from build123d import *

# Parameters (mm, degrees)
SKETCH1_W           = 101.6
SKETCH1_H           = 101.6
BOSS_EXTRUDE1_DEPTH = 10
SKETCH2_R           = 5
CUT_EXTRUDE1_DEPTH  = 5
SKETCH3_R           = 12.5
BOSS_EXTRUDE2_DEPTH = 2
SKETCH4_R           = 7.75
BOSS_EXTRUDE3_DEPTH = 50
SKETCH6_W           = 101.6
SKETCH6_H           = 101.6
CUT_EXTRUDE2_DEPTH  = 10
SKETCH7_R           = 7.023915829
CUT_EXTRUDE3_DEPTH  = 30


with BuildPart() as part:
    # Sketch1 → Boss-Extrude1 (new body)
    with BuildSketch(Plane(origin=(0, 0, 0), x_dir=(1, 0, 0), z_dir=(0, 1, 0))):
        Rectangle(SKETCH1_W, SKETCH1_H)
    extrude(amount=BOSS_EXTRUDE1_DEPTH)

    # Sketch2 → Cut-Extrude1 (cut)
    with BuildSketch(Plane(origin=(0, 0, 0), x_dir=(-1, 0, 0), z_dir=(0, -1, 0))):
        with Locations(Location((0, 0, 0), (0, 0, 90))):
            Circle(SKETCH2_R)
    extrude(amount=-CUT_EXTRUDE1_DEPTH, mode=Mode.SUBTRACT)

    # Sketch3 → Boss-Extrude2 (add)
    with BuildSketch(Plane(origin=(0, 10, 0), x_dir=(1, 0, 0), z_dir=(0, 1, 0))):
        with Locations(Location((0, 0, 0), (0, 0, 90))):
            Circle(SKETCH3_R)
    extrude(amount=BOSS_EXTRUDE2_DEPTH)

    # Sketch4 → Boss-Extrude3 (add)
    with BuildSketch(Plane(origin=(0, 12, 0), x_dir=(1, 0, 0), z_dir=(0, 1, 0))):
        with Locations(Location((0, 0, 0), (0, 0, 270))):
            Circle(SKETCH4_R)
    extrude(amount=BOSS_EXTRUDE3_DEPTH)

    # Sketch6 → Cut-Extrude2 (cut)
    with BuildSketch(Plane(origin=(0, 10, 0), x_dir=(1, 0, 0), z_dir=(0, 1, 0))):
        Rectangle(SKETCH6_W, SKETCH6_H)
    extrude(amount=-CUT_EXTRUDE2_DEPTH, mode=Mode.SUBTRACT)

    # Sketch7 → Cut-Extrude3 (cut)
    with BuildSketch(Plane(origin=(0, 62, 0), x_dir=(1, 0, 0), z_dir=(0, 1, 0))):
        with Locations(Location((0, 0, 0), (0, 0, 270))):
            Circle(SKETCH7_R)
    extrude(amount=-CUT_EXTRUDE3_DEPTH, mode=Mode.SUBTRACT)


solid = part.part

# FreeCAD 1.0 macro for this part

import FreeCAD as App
import Part
import Sketcher
from FreeCAD import Vector


def add_polygon(sketch, points):
    """Adds a closed chain of lines whose ends are joined by coincident constraints."""
    first, n = sketch.GeometryCount, len(points)
    for a, b in zip(points, points[1:] + points[:1]):
        sketch.addGeometry(Part.LineSegment(App.Vector(*a, 0), App.Vector(*b, 0)), False)
    for i in range(n):
        sketch.addConstraint(Sketcher.Constraint("Coincident", first + i, 2, first + (i + 1) % n, 1))

doc = App.newDocument("Part")
params = doc.addObject("Spreadsheet::Sheet", "Params")
for row, (alias, value) in enumerate([
    ("sketch1_width", "101.6 mm"),
    ("pad1_length", "10 mm"),
    ("sketch2_diameter", "10 mm"),
    ("pocket1_length", "5 mm"),
    ("sketch3_diameter", "25 mm"),
    ("pad2_length", "2 mm"),
    ("sketch4_diameter", "15.5 mm"),
    ("pad3_length", "50 mm"),
    ("sketch5_width", "101.6 mm"),
    ("pocket2_length", "10 mm"),
    ("pocket3_length", "30 mm"),
], start=1):
    params.set(f"A{row}", alias)
    params.set(f"B{row}", "=" + value)
    params.setAlias(f"B{row}", alias)

body = doc.addObject("PartDesign::Body", "Body")

sketch1 = body.newObject("Sketcher::SketchObject", "Sketch")
sketch1.AttachmentSupport = (doc.getObject("XZ_Plane"), [""])
sketch1.MapMode = "FlatFace"
add_polygon(sketch1, [(-51, -51), (-51, 51), (51, 51), (51, -51)])
sketch1.addConstraint([
    Sketcher.Constraint("Vertical", 0),
    Sketcher.Constraint("Horizontal", 1),
    Sketcher.Constraint("Vertical", 2),
    Sketcher.Constraint("Horizontal", 3),
    Sketcher.Constraint("Symmetric", 0, 2, 2, 2, -1, 1),
    Sketcher.Constraint("Equal", 3, 0),
    Sketcher.Constraint("DistanceX", 1, 1, 1, 2, 101.6),
])
sketch1.setExpression("Constraints[10]", "Params.sketch1_width")
pad1 = body.newObject("PartDesign::Pad", "Pad")
pad1.Profile = sketch1
pad1.setExpression("Length", "Params.pad1_length")
pad1.Reversed = True

sketch2 = body.newObject("Sketcher::SketchObject", "Sketch001")
sketch2.AttachmentSupport = (doc.getObject("XZ_Plane"), [""])
sketch2.MapMode = "FlatFace"
sketch2.addGeometry(Part.Circle(Vector(0, 0, 0), Vector(0, 0, 1), 5), False)
sketch2.addConstraint([
    Sketcher.Constraint("Coincident", 0, 3, -1, 1),
    Sketcher.Constraint("Diameter", 0, 10.0),
])
sketch2.setExpression("Constraints[1]", "Params.sketch2_diameter")
pocket1 = body.newObject("PartDesign::Pocket", "Pocket")
pocket1.Profile = sketch2
pocket1.setExpression("Length", "Params.pocket1_length")

sketch3 = body.newObject("Sketcher::SketchObject", "Sketch002")
sketch3.AttachmentSupport = (doc.getObject("XZ_Plane"), [""])
sketch3.MapMode = "FlatFace"
sketch3.AttachmentOffset = App.Placement(Vector(0, 0, -10), App.Rotation())
sketch3.addGeometry(Part.Circle(Vector(0, 0, 0), Vector(0, 0, 1), 12), False)
sketch3.addConstraint([
    Sketcher.Constraint("Coincident", 0, 3, -1, 1),
    Sketcher.Constraint("Diameter", 0, 25.0),
])
sketch3.setExpression("Constraints[1]", "Params.sketch3_diameter")
pad2 = body.newObject("PartDesign::Pad", "Pad001")
pad2.Profile = sketch3
pad2.setExpression("Length", "Params.pad2_length")
pad2.Reversed = True

sketch4 = body.newObject("Sketcher::SketchObject", "Sketch003")
sketch4.AttachmentSupport = (doc.getObject("XZ_Plane"), [""])
sketch4.MapMode = "FlatFace"
sketch4.AttachmentOffset = App.Placement(Vector(0, 0, -12), App.Rotation())
sketch4.addGeometry(Part.Circle(Vector(0, 0, 0), Vector(0, 0, 1), 8), False)
sketch4.addConstraint([
    Sketcher.Constraint("Coincident", 0, 3, -1, 1),
    Sketcher.Constraint("Diameter", 0, 15.5),
])
sketch4.setExpression("Constraints[1]", "Params.sketch4_diameter")
pad3 = body.newObject("PartDesign::Pad", "Pad002")
pad3.Profile = sketch4
pad3.setExpression("Length", "Params.pad3_length")
pad3.Reversed = True

sketch5 = body.newObject("Sketcher::SketchObject", "Sketch004")
sketch5.AttachmentSupport = (doc.getObject("XZ_Plane"), [""])
sketch5.MapMode = "FlatFace"
sketch5.AttachmentOffset = App.Placement(Vector(0, 0, -10), App.Rotation())
add_polygon(sketch5, [(-51, -51), (-51, 51), (51, 51), (51, -51)])
sketch5.addConstraint([
    Sketcher.Constraint("Vertical", 0),
    Sketcher.Constraint("Horizontal", 1),
    Sketcher.Constraint("Vertical", 2),
    Sketcher.Constraint("Horizontal", 3),
    Sketcher.Constraint("Symmetric", 0, 2, 2, 2, -1, 1),
    Sketcher.Constraint("Equal", 3, 0),
    Sketcher.Constraint("DistanceX", 1, 1, 1, 2, 101.6),
])
sketch5.setExpression("Constraints[10]", "Params.sketch5_width")
pocket2 = body.newObject("PartDesign::Pocket", "Pocket001")
pocket2.Profile = sketch5
pocket2.setExpression("Length", "Params.pocket2_length")
pocket2.Reversed = True

sketch6 = body.newObject("Sketcher::SketchObject", "Sketch005")
sketch6.AttachmentSupport = (doc.getObject("XZ_Plane"), [""])
sketch6.MapMode = "FlatFace"
sketch6.AttachmentOffset = App.Placement(Vector(0, 0, -62), App.Rotation())
sketch6.addGeometry(Part.Circle(Vector(0, 0, 0), Vector(0, 0, 1), 7), False)
sketch6.addConstraint([
    Sketcher.Constraint("Coincident", 0, 3, -1, 1),
    Sketcher.Constraint("Diameter", 0, 14.047832),
])
pocket3 = body.newObject("PartDesign::Pocket", "Pocket002")
pocket3.Profile = sketch6
pocket3.setExpression("Length", "Params.pocket3_length")
pocket3.Reversed = True

doc.recompute()
